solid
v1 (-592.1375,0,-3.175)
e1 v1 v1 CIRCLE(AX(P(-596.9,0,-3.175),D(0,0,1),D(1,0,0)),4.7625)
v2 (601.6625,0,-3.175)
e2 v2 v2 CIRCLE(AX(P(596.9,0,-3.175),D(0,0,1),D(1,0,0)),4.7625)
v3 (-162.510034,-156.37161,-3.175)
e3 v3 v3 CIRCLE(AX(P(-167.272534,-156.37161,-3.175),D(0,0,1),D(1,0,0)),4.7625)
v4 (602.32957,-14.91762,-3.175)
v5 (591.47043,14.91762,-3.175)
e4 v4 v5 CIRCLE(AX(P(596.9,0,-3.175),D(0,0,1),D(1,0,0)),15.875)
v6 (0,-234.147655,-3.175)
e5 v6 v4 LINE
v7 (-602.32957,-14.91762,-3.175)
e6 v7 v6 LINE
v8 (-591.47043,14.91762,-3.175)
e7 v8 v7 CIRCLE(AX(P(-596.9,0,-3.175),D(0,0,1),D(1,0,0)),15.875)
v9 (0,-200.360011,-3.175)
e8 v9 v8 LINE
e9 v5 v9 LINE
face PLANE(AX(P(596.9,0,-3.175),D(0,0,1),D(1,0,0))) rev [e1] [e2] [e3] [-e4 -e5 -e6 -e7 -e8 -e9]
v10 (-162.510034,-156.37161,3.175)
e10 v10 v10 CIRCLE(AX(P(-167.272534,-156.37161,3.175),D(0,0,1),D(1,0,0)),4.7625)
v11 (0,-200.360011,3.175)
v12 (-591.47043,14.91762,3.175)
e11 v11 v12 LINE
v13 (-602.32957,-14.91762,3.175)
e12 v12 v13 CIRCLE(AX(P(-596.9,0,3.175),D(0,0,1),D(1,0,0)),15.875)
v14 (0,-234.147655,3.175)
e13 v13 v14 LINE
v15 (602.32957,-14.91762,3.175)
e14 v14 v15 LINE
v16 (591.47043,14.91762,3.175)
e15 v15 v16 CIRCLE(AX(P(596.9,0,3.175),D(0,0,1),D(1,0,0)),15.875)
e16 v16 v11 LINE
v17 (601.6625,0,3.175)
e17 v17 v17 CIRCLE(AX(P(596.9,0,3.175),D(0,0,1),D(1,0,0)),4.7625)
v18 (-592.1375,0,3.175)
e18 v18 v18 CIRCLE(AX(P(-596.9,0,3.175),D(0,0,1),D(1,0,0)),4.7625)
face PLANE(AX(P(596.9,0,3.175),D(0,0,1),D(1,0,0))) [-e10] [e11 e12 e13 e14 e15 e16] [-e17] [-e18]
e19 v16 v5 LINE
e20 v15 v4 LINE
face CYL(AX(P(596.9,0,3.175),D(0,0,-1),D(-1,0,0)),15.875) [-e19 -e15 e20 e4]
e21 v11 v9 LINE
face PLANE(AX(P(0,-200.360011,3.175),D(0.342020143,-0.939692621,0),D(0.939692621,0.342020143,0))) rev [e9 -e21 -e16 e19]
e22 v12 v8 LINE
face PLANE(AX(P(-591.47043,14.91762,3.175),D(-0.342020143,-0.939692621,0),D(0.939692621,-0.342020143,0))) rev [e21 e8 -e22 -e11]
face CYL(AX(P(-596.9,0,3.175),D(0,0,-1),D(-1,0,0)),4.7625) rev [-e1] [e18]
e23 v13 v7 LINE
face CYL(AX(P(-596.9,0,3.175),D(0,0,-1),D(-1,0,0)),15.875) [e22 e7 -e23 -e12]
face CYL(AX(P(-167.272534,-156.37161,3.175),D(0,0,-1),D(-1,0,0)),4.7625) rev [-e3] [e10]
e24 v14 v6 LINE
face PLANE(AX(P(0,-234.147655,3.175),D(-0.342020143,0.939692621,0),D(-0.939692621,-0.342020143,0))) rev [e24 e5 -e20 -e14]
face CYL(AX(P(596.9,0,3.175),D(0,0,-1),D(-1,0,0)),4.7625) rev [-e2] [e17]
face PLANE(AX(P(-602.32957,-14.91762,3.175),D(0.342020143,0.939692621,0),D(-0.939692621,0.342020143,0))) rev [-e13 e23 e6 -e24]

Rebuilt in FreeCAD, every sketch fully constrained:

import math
import FreeCAD as App
import Part
import Sketcher
from FreeCAD import Vector
Q = App.Units.Quantity

doc = App.newDocument("Part")
body = doc.addObject("PartDesign::Body", "Body")

sketch1 = body.newObject("Sketcher::SketchObject", "Sketch")
sketch1.AttachmentSupport = (doc.getObject("XY_Plane"), [""])
sketch1.MapMode = "FlatFace"
sketch1.addGeometry([
    Part.LineSegment(Vector(-602.3, -14.9, 0), Vector(0, -234.1, 0)),
    Part.LineSegment(Vector(0, -234.1, 0), Vector(602.3, -14.9, 0)),
    Part.ArcOfCircle(Part.Circle(Vector(596.9, 0, 0), Vector(0, 0, 1), 15.9), math.radians(-70), math.radians(110)),
    Part.LineSegment(Vector(591.5, 14.9, 0), Vector(0, -200.4, 0)),
    Part.LineSegment(Vector(0, -200.4, 0), Vector(-591.5, 14.9, 0)),
    Part.ArcOfCircle(Part.Circle(Vector(-596.9, 0, 0), Vector(0, 0, 1), 15.9), math.radians(70), math.radians(250)),
    Part.Circle(Vector(-167.3, -156.4, 0), Vector(0, 0, 1), 4.8),
    Part.Circle(Vector(-596.9, 0, 0), Vector(0, 0, 1), 4.8),
    Part.Circle(Vector(596.9, 0, 0), Vector(0, 0, 1), 4.8),
], False)
sketch1.addConstraint([
    Sketcher.Constraint("Coincident", 0, 2, 1, 1),
    Sketcher.Constraint("Tangent", 1, 2, 2, 1),
    Sketcher.Constraint("Tangent", 2, 2, 3, 1),
    Sketcher.Constraint("Coincident", 3, 2, 4, 1),
    Sketcher.Constraint("Tangent", 4, 2, 5, 1),
    Sketcher.Constraint("Tangent", 5, 2, 0, 1),
    Sketcher.Constraint("Coincident", 7, 3, 5, 3),
    Sketcher.Constraint("Coincident", 8, 3, 2, 3),
    Sketcher.Constraint("Equal", 2, 5),
    Sketcher.Constraint("Equal", 6, 7),
    Sketcher.Constraint("Equal", 7, 8),
    Sketcher.Constraint("Symmetric", 2, 3, 5, 3, -1, 1),
    Sketcher.Constraint("PointOnObject", 2, 3, -1),
    Sketcher.Constraint("PointOnObject", 0, 2, -2),
    Sketcher.Constraint("PointOnObject", 3, 2, -2),
    Sketcher.Constraint("Parallel", 1, 3),
    Sketcher.Constraint("Diameter", 6, Q("0.375 in")),
    Sketcher.Constraint("Angle", 0, Q("-20 deg")),
    Sketcher.Constraint("Radius", 2, Q("0.625 in")),
    Sketcher.Constraint("DistanceX", 5, 3, 2, 3, Q("47 in")),
    Sketcher.Constraint("DistanceY", 3, 2, 6, 3, Q("43.988401 mm")),
    Sketcher.Constraint("DistanceX", 6, 3, -1, 1, Q("167.272534 mm")),
])
pad1 = body.newObject("PartDesign::Pad", "Pad")
pad1.Profile = sketch1
pad1.Length = Q("0.25 in")
pad1.Midplane = True

doc.recompute()
